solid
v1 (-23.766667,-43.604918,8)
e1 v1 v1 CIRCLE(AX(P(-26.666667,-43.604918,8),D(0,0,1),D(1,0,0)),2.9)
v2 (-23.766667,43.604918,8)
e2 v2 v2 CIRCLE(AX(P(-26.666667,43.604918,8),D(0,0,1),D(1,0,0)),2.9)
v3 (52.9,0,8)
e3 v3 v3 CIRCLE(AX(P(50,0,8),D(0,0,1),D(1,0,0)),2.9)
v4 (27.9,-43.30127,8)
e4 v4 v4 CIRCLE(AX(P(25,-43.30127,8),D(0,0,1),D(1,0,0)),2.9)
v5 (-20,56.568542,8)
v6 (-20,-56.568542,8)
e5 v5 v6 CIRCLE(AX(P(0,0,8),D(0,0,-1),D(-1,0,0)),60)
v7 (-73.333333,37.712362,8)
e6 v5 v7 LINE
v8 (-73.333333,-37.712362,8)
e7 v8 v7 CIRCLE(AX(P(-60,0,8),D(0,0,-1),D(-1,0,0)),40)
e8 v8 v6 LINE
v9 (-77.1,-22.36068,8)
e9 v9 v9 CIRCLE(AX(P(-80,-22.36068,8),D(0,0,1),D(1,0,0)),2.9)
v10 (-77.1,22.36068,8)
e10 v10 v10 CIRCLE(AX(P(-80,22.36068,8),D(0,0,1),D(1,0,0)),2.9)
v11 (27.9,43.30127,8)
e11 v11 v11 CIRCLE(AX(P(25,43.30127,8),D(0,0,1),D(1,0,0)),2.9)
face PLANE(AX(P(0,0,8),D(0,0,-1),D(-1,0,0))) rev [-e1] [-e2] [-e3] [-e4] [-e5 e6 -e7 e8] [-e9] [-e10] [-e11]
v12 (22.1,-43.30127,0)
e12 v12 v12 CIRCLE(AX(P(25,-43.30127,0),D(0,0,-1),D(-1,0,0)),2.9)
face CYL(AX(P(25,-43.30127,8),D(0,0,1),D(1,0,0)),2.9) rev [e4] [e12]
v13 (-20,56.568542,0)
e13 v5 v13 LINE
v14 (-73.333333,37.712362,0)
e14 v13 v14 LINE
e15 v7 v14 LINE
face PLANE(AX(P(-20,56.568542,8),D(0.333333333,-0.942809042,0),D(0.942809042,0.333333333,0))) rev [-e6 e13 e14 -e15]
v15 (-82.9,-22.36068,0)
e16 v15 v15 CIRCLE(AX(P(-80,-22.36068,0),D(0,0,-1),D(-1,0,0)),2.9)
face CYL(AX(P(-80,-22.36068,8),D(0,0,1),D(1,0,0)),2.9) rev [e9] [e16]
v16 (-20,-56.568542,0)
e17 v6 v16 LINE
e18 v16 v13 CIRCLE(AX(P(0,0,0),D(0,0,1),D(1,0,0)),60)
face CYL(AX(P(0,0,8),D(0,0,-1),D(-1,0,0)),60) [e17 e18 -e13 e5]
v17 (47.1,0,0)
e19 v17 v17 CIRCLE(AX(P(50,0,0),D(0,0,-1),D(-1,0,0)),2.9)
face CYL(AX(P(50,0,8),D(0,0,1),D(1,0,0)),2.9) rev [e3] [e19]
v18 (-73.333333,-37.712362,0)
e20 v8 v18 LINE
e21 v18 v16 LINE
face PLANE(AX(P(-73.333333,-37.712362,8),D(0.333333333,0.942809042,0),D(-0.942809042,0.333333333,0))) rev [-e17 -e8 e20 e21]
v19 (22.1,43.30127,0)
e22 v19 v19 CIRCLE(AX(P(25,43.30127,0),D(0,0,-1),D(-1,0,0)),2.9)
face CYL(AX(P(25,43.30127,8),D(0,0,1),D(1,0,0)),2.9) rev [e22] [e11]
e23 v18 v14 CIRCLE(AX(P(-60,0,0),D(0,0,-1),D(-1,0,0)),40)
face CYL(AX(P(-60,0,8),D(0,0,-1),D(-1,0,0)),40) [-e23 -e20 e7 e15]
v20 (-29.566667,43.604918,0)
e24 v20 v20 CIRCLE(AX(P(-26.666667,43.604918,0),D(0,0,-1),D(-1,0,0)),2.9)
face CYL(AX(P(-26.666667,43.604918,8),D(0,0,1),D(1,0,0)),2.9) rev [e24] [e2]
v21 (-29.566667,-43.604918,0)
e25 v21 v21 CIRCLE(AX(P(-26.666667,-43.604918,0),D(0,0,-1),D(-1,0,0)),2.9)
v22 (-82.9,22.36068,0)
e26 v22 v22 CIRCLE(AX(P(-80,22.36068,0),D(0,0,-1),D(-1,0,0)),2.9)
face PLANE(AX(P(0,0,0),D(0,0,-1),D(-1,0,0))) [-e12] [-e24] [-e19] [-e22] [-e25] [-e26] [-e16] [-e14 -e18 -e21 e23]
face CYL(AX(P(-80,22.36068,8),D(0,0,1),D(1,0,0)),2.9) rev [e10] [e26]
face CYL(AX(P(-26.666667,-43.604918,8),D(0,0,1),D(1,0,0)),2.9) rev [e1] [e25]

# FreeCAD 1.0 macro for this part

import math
import FreeCAD as App
import Part
import Sketcher

V = App.Vector
Q = App.Units.Quantity

doc = App.newDocument("Part")
params = doc.addObject("Spreadsheet::Sheet", "Params")
for row, (alias, value) in enumerate([
    ("sketch1_radius", "40 mm"),
    ("sketch1_radius2", "60 mm"),
    ("pad1_length", "8 mm"),
    ("sketch2_diameter", "5.8 mm"),
    ("hole_diameter", "5.8 mm"),
    ("hole_depth", "90 mm"),
], start=1):
    params.set(f"A{row}", alias)
    params.set(f"B{row}", "=" + value)
    params.setAlias(f"B{row}", alias)

body = doc.addObject("PartDesign::Body", "Body")

# Sketch on XY plane
sketch1 = body.newObject("Sketcher::SketchObject", "Sketch")
sketch1.AttachmentSupport = (doc.getObject("XY_Plane"), [""])
sketch1.MapMode = "FlatFace"
sketch1.addGeometry(Part.LineSegment(V(-20, 57, 0), V(-73, 38, 0)), False)
sketch1.addGeometry(Part.ArcOfCircle(Part.Circle(V(-60, 0, 0), V(0, 0, 1), 40), math.radians(109), math.radians(251)), False)
sketch1.addGeometry(Part.LineSegment(V(-73, -38, 0), V(-20, -57, 0)), False)
sketch1.addGeometry(Part.ArcOfCircle(Part.Circle(V(0, 0, 0), V(0, 0, 1), 60), math.radians(-109), math.radians(0)), False)
sketch1.addGeometry(Part.ArcOfCircle(Part.Circle(V(0, 0, 0), V(0, 0, 1), 60), math.radians(0), math.radians(109)), False)
sketch1.addConstraint(Sketcher.Constraint("Tangent", 0, 2, 1, 1))
sketch1.addConstraint(Sketcher.Constraint("Tangent", 1, 2, 2, 1))
sketch1.addConstraint(Sketcher.Constraint("Tangent", 2, 2, 3, 1))
sketch1.addConstraint(Sketcher.Constraint("Tangent", 3, 2, 4, 1))
sketch1.addConstraint(Sketcher.Constraint("Tangent", 4, 2, 0, 1))
sketch1.addConstraint(Sketcher.Constraint("Coincident", 3, 3, -1, 1))
sketch1.addConstraint(Sketcher.Constraint("Equal", 3, 4))
sketch1.addConstraint(Sketcher.Constraint("PointOnObject", 1, 3, -1))
sketch1.addConstraint(Sketcher.Constraint("PointOnObject", 3, 2, -1))
sketch1.addConstraint(Sketcher.Constraint("Radius", 1, Q("40 mm")))
sketch1.addConstraint(Sketcher.Constraint("Radius", 3, Q("60 mm")))
sketch1.addConstraint(Sketcher.Constraint("DistanceX", 1, 3, -1, 1, Q("60 mm")))
sketch1.setExpression("Constraints[9]", "Params.sketch1_radius")
sketch1.setExpression("Constraints[10]", "Params.sketch1_radius2")
pad1 = body.newObject("PartDesign::Pad", "Pad")
pad1.Profile = sketch1
pad1.setExpression("Length", "Params.pad1_length")

# Sketch on XY plane
sketch2 = body.newObject("Sketcher::SketchObject", "Sketch001")
sketch2.AttachmentSupport = (doc.getObject("XY_Plane"), [""])
sketch2.MapMode = "FlatFace"
sketch2.AttachmentOffset = App.Placement(V(0, 0, 8), App.Rotation())
sketch2.addGeometry(Part.Circle(V(-26.7, 43.6, 0), V(0, 0, 1), 2.9), False)
sketch2.addGeometry(Part.Circle(V(50, 0, 0), V(0, 0, 1), 2.9), False)
sketch2.addGeometry(Part.Circle(V(25, -43.3, 0), V(0, 0, 1), 2.9), False)
sketch2.addGeometry(Part.Circle(V(25, 43.3, 0), V(0, 0, 1), 2.9), False)
sketch2.addGeometry(Part.Circle(V(-80, -22.4, 0), V(0, 0, 1), 2.9), False)
sketch2.addGeometry(Part.Circle(V(-80, 22.4, 0), V(0, 0, 1), 2.9), False)
sketch2.addGeometry(Part.Circle(V(-26.7, -43.6, 0), V(0, 0, 1), 2.9), False)
sketch2.addConstraint(Sketcher.Constraint("Equal", 0, 1))
sketch2.addConstraint(Sketcher.Constraint("Equal", 1, 2))
sketch2.addConstraint(Sketcher.Constraint("Equal", 2, 3))
sketch2.addConstraint(Sketcher.Constraint("Equal", 3, 4))
sketch2.addConstraint(Sketcher.Constraint("Equal", 4, 5))
sketch2.addConstraint(Sketcher.Constraint("Equal", 5, 6))
sketch2.addConstraint(Sketcher.Constraint("Symmetric", 2, 3, 3, 3, -1))
sketch2.addConstraint(Sketcher.Constraint("Symmetric", 4, 3, 5, 3, -1))
sketch2.addConstraint(Sketcher.Constraint("Symmetric", 0, 3, 6, 3, -1))
sketch2.addConstraint(Sketcher.Constraint("PointOnObject", 1, 3, -1))
sketch2.addConstraint(Sketcher.Constraint("Diameter", 0, Q("5.8 mm")))
sketch2.addConstraint(Sketcher.Constraint("DistanceX", -1, 1, 1, 3, Q("50 mm")))
sketch2.addConstraint(Sketcher.Constraint("DistanceX", -1, 1, 2, 3, Q("25 mm")))
sketch2.addConstraint(Sketcher.Constraint("DistanceX", 4, 3, -1, 1, Q("80 mm")))
sketch2.addConstraint(Sketcher.Constraint("DistanceY", -1, 1, 0, 3, Q("43.604918 mm")))
sketch2.addConstraint(Sketcher.Constraint("DistanceY", 2, 3, -1, 1, Q("43.30127 mm")))
sketch2.addConstraint(Sketcher.Constraint("DistanceY", 4, 3, -1, 1, Q("22.36068 mm")))
sketch2.addConstraint(Sketcher.Constraint("DistanceX", 0, 3, -1, 1, Q("26.666667 mm")))
sketch2.setExpression("Constraints[10]", "Params.sketch2_diameter")
doc.recompute()
hole = body.newObject("PartDesign::Hole", "Hole")
hole.Profile = sketch2
hole.ThreadType = "None"
hole.setExpression("Diameter", "Params.hole_diameter")
hole.DepthType = "Dimension"
hole.setExpression("Depth", "Params.hole_depth")
hole.DrillPoint = "Angled"
hole.DrillPointAngle = 118

doc.recompute()
